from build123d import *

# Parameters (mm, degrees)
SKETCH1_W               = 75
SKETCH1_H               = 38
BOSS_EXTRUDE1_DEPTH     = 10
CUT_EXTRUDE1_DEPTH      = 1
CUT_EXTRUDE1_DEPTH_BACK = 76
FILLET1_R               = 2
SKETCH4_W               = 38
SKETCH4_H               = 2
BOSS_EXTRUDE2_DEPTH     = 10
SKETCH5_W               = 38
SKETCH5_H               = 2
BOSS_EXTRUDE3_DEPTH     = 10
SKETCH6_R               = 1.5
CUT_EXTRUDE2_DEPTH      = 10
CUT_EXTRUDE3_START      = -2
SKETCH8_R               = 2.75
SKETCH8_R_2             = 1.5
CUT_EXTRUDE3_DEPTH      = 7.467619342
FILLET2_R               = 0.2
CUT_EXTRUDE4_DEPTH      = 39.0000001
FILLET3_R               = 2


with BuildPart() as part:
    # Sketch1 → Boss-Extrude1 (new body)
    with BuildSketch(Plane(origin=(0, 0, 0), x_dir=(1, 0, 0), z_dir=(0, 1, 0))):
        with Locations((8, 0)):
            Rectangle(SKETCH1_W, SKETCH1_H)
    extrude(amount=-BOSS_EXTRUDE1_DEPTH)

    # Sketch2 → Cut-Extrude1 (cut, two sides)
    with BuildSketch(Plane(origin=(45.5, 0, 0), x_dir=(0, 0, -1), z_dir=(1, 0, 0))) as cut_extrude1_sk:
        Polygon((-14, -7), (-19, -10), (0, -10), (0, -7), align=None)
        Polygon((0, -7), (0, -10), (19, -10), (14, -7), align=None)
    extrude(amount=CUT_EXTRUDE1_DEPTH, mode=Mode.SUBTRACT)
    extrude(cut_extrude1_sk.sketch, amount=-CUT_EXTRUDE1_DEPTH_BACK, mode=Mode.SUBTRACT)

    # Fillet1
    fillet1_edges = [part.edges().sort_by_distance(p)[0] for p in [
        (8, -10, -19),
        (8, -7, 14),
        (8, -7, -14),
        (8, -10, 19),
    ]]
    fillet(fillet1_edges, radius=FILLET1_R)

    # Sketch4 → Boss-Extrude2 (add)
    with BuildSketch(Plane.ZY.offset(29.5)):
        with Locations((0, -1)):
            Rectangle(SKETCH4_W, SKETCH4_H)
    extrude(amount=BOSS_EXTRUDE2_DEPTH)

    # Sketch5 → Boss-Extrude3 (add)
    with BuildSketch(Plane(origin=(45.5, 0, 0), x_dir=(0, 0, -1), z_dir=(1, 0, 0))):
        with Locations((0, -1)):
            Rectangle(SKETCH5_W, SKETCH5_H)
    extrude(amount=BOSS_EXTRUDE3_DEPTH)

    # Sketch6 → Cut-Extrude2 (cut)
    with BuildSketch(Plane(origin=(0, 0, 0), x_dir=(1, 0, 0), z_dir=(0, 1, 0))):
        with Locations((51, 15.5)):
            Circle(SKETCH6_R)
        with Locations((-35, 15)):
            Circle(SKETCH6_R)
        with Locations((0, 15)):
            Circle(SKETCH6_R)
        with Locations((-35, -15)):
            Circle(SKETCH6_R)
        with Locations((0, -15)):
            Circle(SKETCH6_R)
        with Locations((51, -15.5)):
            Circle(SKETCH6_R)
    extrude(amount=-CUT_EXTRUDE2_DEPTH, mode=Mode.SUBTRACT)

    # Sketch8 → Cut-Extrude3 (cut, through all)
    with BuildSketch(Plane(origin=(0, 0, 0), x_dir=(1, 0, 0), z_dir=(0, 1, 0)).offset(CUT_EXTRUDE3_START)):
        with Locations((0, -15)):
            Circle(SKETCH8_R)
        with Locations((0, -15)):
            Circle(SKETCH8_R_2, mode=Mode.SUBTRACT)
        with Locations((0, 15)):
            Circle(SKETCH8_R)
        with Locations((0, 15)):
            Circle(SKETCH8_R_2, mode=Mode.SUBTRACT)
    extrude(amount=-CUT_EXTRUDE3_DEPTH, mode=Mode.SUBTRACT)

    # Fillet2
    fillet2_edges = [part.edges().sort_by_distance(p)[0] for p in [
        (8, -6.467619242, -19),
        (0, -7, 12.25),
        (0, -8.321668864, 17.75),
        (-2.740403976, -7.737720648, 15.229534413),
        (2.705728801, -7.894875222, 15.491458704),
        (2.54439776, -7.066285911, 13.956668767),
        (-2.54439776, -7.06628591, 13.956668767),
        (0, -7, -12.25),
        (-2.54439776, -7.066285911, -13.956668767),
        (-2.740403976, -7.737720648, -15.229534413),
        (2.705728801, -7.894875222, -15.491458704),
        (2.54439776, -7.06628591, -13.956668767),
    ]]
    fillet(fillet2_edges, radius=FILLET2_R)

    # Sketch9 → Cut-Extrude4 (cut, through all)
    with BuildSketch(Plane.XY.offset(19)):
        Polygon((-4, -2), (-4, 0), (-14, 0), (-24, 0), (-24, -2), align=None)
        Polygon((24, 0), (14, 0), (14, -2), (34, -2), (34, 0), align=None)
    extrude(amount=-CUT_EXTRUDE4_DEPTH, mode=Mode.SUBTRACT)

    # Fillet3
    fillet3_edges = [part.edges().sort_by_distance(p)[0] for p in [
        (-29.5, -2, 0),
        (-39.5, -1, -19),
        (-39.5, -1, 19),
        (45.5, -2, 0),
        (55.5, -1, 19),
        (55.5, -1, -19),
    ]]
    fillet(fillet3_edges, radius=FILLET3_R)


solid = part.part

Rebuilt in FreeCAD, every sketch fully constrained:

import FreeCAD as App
import Part
import Sketcher
from FreeCAD import Vector
Q = App.Units.Quantity


def edges_at(feature, points):
    """Names of the edges that pass closest to the given points."""
    edges = feature.Shape.Edges
    near = lambda p: min(range(len(edges)), key=lambda i: edges[i].distToShape(Part.Vertex(*p))[0])
    return sorted({f"Edge{near(p) + 1}" for p in points})

doc = App.newDocument("Part")
body = doc.addObject("PartDesign::Body", "Body")

# Sketch on XZ plane
sketch1 = body.newObject("Sketcher::SketchObject", "Sketch")
sketch1.AttachmentSupport = (doc.getObject("XZ_Plane"), [""])
sketch1.MapMode = "FlatFace"
sketch1.addGeometry(Part.LineSegment(Vector(-29.5, -19, 0), Vector(-29.5, 19, 0)), False)
sketch1.addGeometry(Part.LineSegment(Vector(-29.5, 19, 0), Vector(45.5, 19, 0)), False)
sketch1.addGeometry(Part.LineSegment(Vector(45.5, 19, 0), Vector(45.5, -19, 0)), False)
sketch1.addGeometry(Part.LineSegment(Vector(45.5, -19, 0), Vector(-29.5, -19, 0)), False)
sketch1.addConstraint(Sketcher.Constraint("Coincident", 0, 2, 1, 1))
sketch1.addConstraint(Sketcher.Constraint("Coincident", 1, 2, 2, 1))
sketch1.addConstraint(Sketcher.Constraint("Coincident", 2, 2, 3, 1))
sketch1.addConstraint(Sketcher.Constraint("Coincident", 3, 2, 0, 1))
sketch1.addConstraint(Sketcher.Constraint("Vertical", 0))
sketch1.addConstraint(Sketcher.Constraint("Horizontal", 1))
sketch1.addConstraint(Sketcher.Constraint("Vertical", 2))
sketch1.addConstraint(Sketcher.Constraint("Horizontal", 3))
sketch1.addConstraint(Sketcher.Constraint("DistanceX", 1, 1, 1, 2, Q("75 mm")))
sketch1.addConstraint(Sketcher.Constraint("DistanceY", 0, 1, 0, 2, Q("38 mm")))
sketch1.addConstraint(Sketcher.Constraint("DistanceY", -1, 1, 0, 2, Q("19 mm")))
sketch1.addConstraint(Sketcher.Constraint("DistanceX", 0, 2, -1, 1, Q("29.5 mm")))
pad1 = body.newObject("PartDesign::Pad", "Pad")
pad1.Profile = sketch1
pad1.Length = 10

# Sketch on YZ plane
sketch2 = body.newObject("Sketcher::SketchObject", "Sketch001")
sketch2.AttachmentSupport = (doc.getObject("YZ_Plane"), [""])
sketch2.MapMode = "FlatFace"
sketch2.AttachmentOffset = App.Placement(Vector(0, 0, 45.5), App.Rotation())
sketch2.addGeometry(Part.LineSegment(Vector(-7, 14, 0), Vector(-10, 19, 0)), False)
sketch2.addGeometry(Part.LineSegment(Vector(-10, 19, 0), Vector(-10, -19, 0)), False)
sketch2.addGeometry(Part.LineSegment(Vector(-10, -19, 0), Vector(-7, -14, 0)), False)
sketch2.addGeometry(Part.LineSegment(Vector(-7, -14, 0), Vector(-7, 14, 0)), False)
sketch2.addConstraint(Sketcher.Constraint("Coincident", 0, 2, 1, 1))
sketch2.addConstraint(Sketcher.Constraint("Coincident", 1, 2, 2, 1))
sketch2.addConstraint(Sketcher.Constraint("Coincident", 2, 2, 3, 1))
sketch2.addConstraint(Sketcher.Constraint("Coincident", 3, 2, 0, 1))
sketch2.addConstraint(Sketcher.Constraint("Vertical", 1))
sketch2.addConstraint(Sketcher.Constraint("Vertical", 3))
sketch2.addConstraint(Sketcher.Constraint("Equal", 0, 2))
sketch2.addConstraint(Sketcher.Constraint("DistanceY", 1, 2, 1, 1, Q("38 mm")))
sketch2.addConstraint(Sketcher.Constraint("DistanceY", 3, 1, 3, 2, Q("28 mm")))
sketch2.addConstraint(Sketcher.Constraint("DistanceX", 0, 2, -1, 1, Q("10 mm")))
sketch2.addConstraint(Sketcher.Constraint("DistanceY", -1, 1, 0, 2, Q("19 mm")))
sketch2.addConstraint(Sketcher.Constraint("DistanceX", 2, 2, -1, 1, Q("7 mm")))
pocket1 = body.newObject("PartDesign::Pocket", "Pocket")
pocket1.Profile = sketch2
pocket1.Type = "ThroughAll"
pocket1.Midplane = True
doc.recompute()

fillet = body.newObject("PartDesign::Fillet", "Fillet")
fillet.Base = (pocket1, edges_at(pocket1, [
    (8, -10, -19),
    (8, -7, 14),
    (8, -7, -14),
    (8, -10, 19),
]))
fillet.Radius = 2

# Sketch on YZ plane
sketch3 = body.newObject("Sketcher::SketchObject", "Sketch002")
sketch3.AttachmentSupport = (doc.getObject("YZ_Plane"), [""])
sketch3.MapMode = "FlatFace"
sketch3.AttachmentOffset = App.Placement(Vector(0, 0, -29.5), App.Rotation())
sketch3.addGeometry(Part.LineSegment(Vector(0, -19, 0), Vector(-2, -19, 0)), False)
sketch3.addGeometry(Part.LineSegment(Vector(-2, -19, 0), Vector(-2, 19, 0)), False)
sketch3.addGeometry(Part.LineSegment(Vector(-2, 19, 0), Vector(0, 19, 0)), False)
sketch3.addGeometry(Part.LineSegment(Vector(0, 19, 0), Vector(0, -19, 0)), False)
sketch3.addConstraint(Sketcher.Constraint("Coincident", 0, 2, 1, 1))
sketch3.addConstraint(Sketcher.Constraint("Coincident", 1, 2, 2, 1))
sketch3.addConstraint(Sketcher.Constraint("Coincident", 2, 2, 3, 1))
sketch3.addConstraint(Sketcher.Constraint("Coincident", 3, 2, 0, 1))
sketch3.addConstraint(Sketcher.Constraint("Horizontal", 0))
sketch3.addConstraint(Sketcher.Constraint("Vertical", 1))
sketch3.addConstraint(Sketcher.Constraint("Horizontal", 2))
sketch3.addConstraint(Sketcher.Constraint("Vertical", 3))
sketch3.addConstraint(Sketcher.Constraint("Symmetric", 2, 2, 3, 2, -1, 1))
sketch3.addConstraint(Sketcher.Constraint("DistanceX", 0, 2, 0, 1, Q("2 mm")))
sketch3.addConstraint(Sketcher.Constraint("DistanceY", 1, 1, 1, 2, Q("38 mm")))
pad2 = body.newObject("PartDesign::Pad", "Pad001")
pad2.Profile = sketch3
pad2.Length = 10
pad2.Reversed = True

# Sketch on YZ plane
sketch4 = body.newObject("Sketcher::SketchObject", "Sketch003")
sketch4.AttachmentSupport = (doc.getObject("YZ_Plane"), [""])
sketch4.MapMode = "FlatFace"
sketch4.AttachmentOffset = App.Placement(Vector(0, 0, 45.5), App.Rotation())
sketch4.addGeometry(Part.LineSegment(Vector(0, 19, 0), Vector(-2, 19, 0)), False)
sketch4.addGeometry(Part.LineSegment(Vector(-2, 19, 0), Vector(-2, -19, 0)), False)
sketch4.addGeometry(Part.LineSegment(Vector(-2, -19, 0), Vector(0, -19, 0)), False)
sketch4.addGeometry(Part.LineSegment(Vector(0, -19, 0), Vector(0, 19, 0)), False)
sketch4.addConstraint(Sketcher.Constraint("Coincident", 0, 2, 1, 1))
sketch4.addConstraint(Sketcher.Constraint("Coincident", 1, 2, 2, 1))
sketch4.addConstraint(Sketcher.Constraint("Coincident", 2, 2, 3, 1))
sketch4.addConstraint(Sketcher.Constraint("Coincident", 3, 2, 0, 1))
sketch4.addConstraint(Sketcher.Constraint("Horizontal", 0))
sketch4.addConstraint(Sketcher.Constraint("Vertical", 1))
sketch4.addConstraint(Sketcher.Constraint("Horizontal", 2))
sketch4.addConstraint(Sketcher.Constraint("Vertical", 3))
sketch4.addConstraint(Sketcher.Constraint("Symmetric", 2, 2, 3, 2, -1, 1))
sketch4.addConstraint(Sketcher.Constraint("DistanceX", 0, 2, 0, 1, Q("2 mm")))
sketch4.addConstraint(Sketcher.Constraint("DistanceY", 1, 2, 1, 1, Q("38 mm")))
pad3 = body.newObject("PartDesign::Pad", "Pad002")
pad3.Profile = sketch4
pad3.Length = 10

# Sketch on XZ plane
sketch5 = body.newObject("Sketcher::SketchObject", "Sketch004")
sketch5.AttachmentSupport = (doc.getObject("XZ_Plane"), [""])
sketch5.MapMode = "FlatFace"
sketch5.addGeometry(Part.Circle(Vector(51, -15.5, 0), Vector(0, 0, 1), 1.5), False)
sketch5.addGeometry(Part.Circle(Vector(-35, -15, 0), Vector(0, 0, 1), 1.5), False)
sketch5.addGeometry(Part.Circle(Vector(0, -15, 0), Vector(0, 0, 1), 1.5), False)
sketch5.addGeometry(Part.Circle(Vector(-35, 15, 0), Vector(0, 0, 1), 1.5), False)
sketch5.addGeometry(Part.Circle(Vector(0, 15, 0), Vector(0, 0, 1), 1.5), False)
sketch5.addGeometry(Part.Circle(Vector(51, 15.5, 0), Vector(0, 0, 1), 1.5), False)
sketch5.addConstraint(Sketcher.Constraint("Equal", 0, 1))
sketch5.addConstraint(Sketcher.Constraint("Equal", 1, 2))
sketch5.addConstraint(Sketcher.Constraint("Equal", 2, 3))
sketch5.addConstraint(Sketcher.Constraint("Equal", 3, 4))
sketch5.addConstraint(Sketcher.Constraint("Equal", 4, 5))
sketch5.addConstraint(Sketcher.Constraint("Symmetric", 2, 3, 4, 3, -1, 1))
sketch5.addConstraint(Sketcher.Constraint("Symmetric", 1, 3, 3, 3, -1))
sketch5.addConstraint(Sketcher.Constraint("Symmetric", 0, 3, 5, 3, -1))
sketch5.addConstraint(Sketcher.Constraint("PointOnObject", 2, 3, -2))
sketch5.addConstraint(Sketcher.Constraint("Horizontal", 1, 3, 2, 3))
sketch5.addConstraint(Sketcher.Constraint("Diameter", 0, Q("3 mm")))
sketch5.addConstraint(Sketcher.Constraint("DistanceX", -1, 1, 0, 3, Q("51 mm")))
sketch5.addConstraint(Sketcher.Constraint("DistanceX", 1, 3, -1, 1, Q("35 mm")))
sketch5.addConstraint(Sketcher.Constraint("DistanceY", 1, 3, -1, 1, Q("15 mm")))
sketch5.addConstraint(Sketcher.Constraint("DistanceY", 0, 3, 5, 3, Q("31 mm")))
pocket2 = body.newObject("PartDesign::Pocket", "Pocket001")
pocket2.Profile = sketch5
pocket2.Length = 10
pocket2.Reversed = True

# Sketch on XZ plane
sketch6 = body.newObject("Sketcher::SketchObject", "Sketch005")
sketch6.AttachmentSupport = (doc.getObject("XZ_Plane"), [""])
sketch6.MapMode = "FlatFace"
sketch6.AttachmentOffset = App.Placement(Vector(0, 0, 2), App.Rotation())
sketch6.addGeometry(Part.Circle(Vector(0, 15, 0), Vector(0, 0, 1), 2.75), False)
sketch6.addGeometry(Part.Circle(Vector(0, 15, 0), Vector(0, 0, 1), 1.5), False)
sketch6.addGeometry(Part.Circle(Vector(0, -15, 0), Vector(0, 0, 1), 2.75), False)
sketch6.addGeometry(Part.Circle(Vector(0, -15, 0), Vector(0, 0, 1), 1.5), False)
sketch6.addConstraint(Sketcher.Constraint("Coincident", 1, 3, 0, 3))
sketch6.addConstraint(Sketcher.Constraint("Coincident", 3, 3, 2, 3))
sketch6.addConstraint(Sketcher.Constraint("Equal", 0, 2))
sketch6.addConstraint(Sketcher.Constraint("Equal", 1, 3))
sketch6.addConstraint(Sketcher.Constraint("Symmetric", 0, 3, 2, 3, -1, 1))
sketch6.addConstraint(Sketcher.Constraint("PointOnObject", 0, 3, -2))
sketch6.addConstraint(Sketcher.Constraint("Diameter", 1, Q("3 mm")))
sketch6.addConstraint(Sketcher.Constraint("Diameter", 0, Q("5.5 mm")))
sketch6.addConstraint(Sketcher.Constraint("DistanceY", -1, 1, 0, 3, Q("15 mm")))
pocket3 = body.newObject("PartDesign::Pocket", "Pocket002")
pocket3.Profile = sketch6
pocket3.Type = "ThroughAll"
pocket3.Reversed = True
doc.recompute()

fillet2 = body.newObject("PartDesign::Fillet", "Fillet001")
fillet2.Base = (pocket3, edges_at(pocket3, [
    (8, -6.468, -19),
    (0, -7, 12.25),
    (0, -8.322, 17.75),
    (-2.74, -7.738, 15.23),
    (2.706, -7.895, 15.491),
    (2.544, -7.066, 13.957),
    (-2.544, -7.066, 13.957),
    (0, -7, -12.25),
    (-2.544, -7.066, -13.957),
    (-2.74, -7.738, -15.23),
    (2.706, -7.895, -15.491),
    (2.544, -7.066, -13.957),
]))
fillet2.Radius = 0.2

# Sketch on XY plane
sketch7 = body.newObject("Sketcher::SketchObject", "Sketch006")
sketch7.AttachmentSupport = (doc.getObject("XY_Plane"), [""])
sketch7.MapMode = "FlatFace"
sketch7.AttachmentOffset = App.Placement(Vector(0, 0, 19), App.Rotation())
sketch7.addGeometry(Part.LineSegment(Vector(-4, -2, 0), Vector(-4, 0, 0)), False)
sketch7.addGeometry(Part.LineSegment(Vector(-4, 0, 0), Vector(-24, 0, 0)), False)
sketch7.addGeometry(Part.LineSegment(Vector(-24, 0, 0), Vector(-24, -2, 0)), False)
sketch7.addGeometry(Part.LineSegment(Vector(-24, -2, 0), Vector(-4, -2, 0)), False)
sketch7.addGeometry(Part.LineSegment(Vector(14, 0, 0), Vector(14, -2, 0)), False)
sketch7.addGeometry(Part.LineSegment(Vector(14, -2, 0), Vector(34, -2, 0)), False)
sketch7.addGeometry(Part.LineSegment(Vector(34, -2, 0), Vector(34, 0, 0)), False)
sketch7.addGeometry(Part.LineSegment(Vector(34, 0, 0), Vector(14, 0, 0)), False)
sketch7.addConstraint(Sketcher.Constraint("Coincident", 0, 2, 1, 1))
sketch7.addConstraint(Sketcher.Constraint("Coincident", 1, 2, 2, 1))
sketch7.addConstraint(Sketcher.Constraint("Coincident", 2, 2, 3, 1))
sketch7.addConstraint(Sketcher.Constraint("Coincident", 3, 2, 0, 1))
sketch7.addConstraint(Sketcher.Constraint("Coincident", 4, 2, 5, 1))
sketch7.addConstraint(Sketcher.Constraint("Coincident", 5, 2, 6, 1))
sketch7.addConstraint(Sketcher.Constraint("Coincident", 6, 2, 7, 1))
sketch7.addConstraint(Sketcher.Constraint("Coincident", 7, 2, 4, 1))
sketch7.addConstraint(Sketcher.Constraint("Vertical", 0))
sketch7.addConstraint(Sketcher.Constraint("Horizontal", 1))
sketch7.addConstraint(Sketcher.Constraint("Vertical", 2))
sketch7.addConstraint(Sketcher.Constraint("Horizontal", 3))
sketch7.addConstraint(Sketcher.Constraint("Vertical", 4))
sketch7.addConstraint(Sketcher.Constraint("Horizontal", 5))
sketch7.addConstraint(Sketcher.Constraint("Vertical", 6))
sketch7.addConstraint(Sketcher.Constraint("Horizontal", 7))
sketch7.addConstraint(Sketcher.Constraint("PointOnObject", 0, 2, -1))
sketch7.addConstraint(Sketcher.Constraint("PointOnObject", 6, 2, -1))
sketch7.addConstraint(Sketcher.Constraint("Horizontal", 3, 2, 4, 2))
sketch7.addConstraint(Sketcher.Constraint("Equal", 3, 5))
sketch7.addConstraint(Sketcher.Constraint("DistanceX", 1, 2, 1, 1, Q("20 mm")))
sketch7.addConstraint(Sketcher.Constraint("DistanceY", 0, 1, 0, 2, Q("2 mm")))
sketch7.addConstraint(Sketcher.Constraint("DistanceX", 0, 2, -1, 1, Q("4 mm")))
sketch7.addConstraint(Sketcher.Constraint("DistanceX", -1, 1, 4, 2, Q("14 mm")))
pocket4 = body.newObject("PartDesign::Pocket", "Pocket003")
pocket4.Profile = sketch7
pocket4.Type = "ThroughAll"
doc.recompute()

fillet3 = body.newObject("PartDesign::Fillet", "Fillet002")
fillet3.Base = (pocket4, edges_at(pocket4, [
    (-29.5, -2, 0),
    (-39.5, -1, -19),
    (-39.5, -1, 19),
    (45.5, -2, 0),
    (55.5, -1, 19),
    (55.5, -1, -19),
]))
fillet3.Radius = 2

doc.recompute()
